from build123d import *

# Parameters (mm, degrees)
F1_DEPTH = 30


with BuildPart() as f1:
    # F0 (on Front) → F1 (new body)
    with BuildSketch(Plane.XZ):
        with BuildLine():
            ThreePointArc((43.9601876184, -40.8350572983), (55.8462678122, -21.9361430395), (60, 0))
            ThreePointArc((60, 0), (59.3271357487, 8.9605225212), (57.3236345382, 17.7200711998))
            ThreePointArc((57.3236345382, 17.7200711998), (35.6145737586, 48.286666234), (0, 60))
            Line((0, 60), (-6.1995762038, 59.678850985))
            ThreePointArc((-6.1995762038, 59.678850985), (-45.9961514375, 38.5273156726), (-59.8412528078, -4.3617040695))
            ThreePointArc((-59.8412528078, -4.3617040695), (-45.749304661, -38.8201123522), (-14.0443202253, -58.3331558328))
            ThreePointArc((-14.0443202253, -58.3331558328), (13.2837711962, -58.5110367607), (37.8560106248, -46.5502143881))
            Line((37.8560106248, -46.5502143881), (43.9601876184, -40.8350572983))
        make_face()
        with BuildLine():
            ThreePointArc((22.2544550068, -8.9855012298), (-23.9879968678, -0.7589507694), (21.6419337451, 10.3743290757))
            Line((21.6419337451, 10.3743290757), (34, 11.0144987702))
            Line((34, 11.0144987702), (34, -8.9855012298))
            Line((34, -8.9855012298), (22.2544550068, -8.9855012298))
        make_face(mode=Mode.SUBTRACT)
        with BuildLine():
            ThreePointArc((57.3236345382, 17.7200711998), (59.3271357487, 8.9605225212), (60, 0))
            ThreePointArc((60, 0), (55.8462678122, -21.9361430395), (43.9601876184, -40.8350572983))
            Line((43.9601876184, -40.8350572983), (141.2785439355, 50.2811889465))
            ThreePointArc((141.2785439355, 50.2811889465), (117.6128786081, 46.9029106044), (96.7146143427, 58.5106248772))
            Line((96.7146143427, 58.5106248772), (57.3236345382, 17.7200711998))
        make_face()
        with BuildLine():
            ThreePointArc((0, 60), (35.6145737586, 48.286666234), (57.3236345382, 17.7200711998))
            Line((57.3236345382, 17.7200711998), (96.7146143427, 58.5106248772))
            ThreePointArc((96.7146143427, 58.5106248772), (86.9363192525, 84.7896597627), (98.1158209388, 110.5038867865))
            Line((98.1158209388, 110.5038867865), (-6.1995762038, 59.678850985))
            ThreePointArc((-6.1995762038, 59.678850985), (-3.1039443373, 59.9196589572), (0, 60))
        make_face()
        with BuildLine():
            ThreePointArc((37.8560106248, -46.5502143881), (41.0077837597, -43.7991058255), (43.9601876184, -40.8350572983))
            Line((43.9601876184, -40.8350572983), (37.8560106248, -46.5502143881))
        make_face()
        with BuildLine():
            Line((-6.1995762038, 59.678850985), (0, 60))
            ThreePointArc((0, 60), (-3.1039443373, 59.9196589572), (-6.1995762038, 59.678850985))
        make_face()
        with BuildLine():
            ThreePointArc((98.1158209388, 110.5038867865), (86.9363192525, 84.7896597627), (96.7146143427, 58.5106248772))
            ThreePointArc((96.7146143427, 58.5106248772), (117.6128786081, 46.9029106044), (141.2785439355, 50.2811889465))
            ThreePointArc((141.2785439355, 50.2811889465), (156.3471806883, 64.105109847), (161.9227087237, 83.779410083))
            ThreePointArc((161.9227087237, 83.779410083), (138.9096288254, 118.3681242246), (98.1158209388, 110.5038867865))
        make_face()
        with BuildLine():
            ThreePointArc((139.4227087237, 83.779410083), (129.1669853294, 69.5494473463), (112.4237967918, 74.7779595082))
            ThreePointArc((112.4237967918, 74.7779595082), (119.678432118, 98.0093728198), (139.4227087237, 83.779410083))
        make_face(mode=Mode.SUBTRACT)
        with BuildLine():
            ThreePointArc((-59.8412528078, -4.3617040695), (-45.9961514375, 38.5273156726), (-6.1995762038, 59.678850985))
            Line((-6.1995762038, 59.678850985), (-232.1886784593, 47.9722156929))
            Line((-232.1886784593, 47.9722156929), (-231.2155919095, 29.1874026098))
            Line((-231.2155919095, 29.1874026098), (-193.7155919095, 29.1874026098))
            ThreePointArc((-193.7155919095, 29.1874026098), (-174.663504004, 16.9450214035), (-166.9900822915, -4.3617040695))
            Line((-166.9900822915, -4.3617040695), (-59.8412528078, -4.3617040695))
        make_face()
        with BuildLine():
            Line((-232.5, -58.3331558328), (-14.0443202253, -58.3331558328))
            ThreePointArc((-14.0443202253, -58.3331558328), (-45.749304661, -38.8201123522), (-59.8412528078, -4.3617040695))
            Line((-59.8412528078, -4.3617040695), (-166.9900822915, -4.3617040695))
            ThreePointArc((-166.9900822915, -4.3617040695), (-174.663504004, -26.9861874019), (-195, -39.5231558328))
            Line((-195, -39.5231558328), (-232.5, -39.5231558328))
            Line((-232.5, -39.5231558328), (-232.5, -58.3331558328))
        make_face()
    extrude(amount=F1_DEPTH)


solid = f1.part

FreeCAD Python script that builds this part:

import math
import FreeCAD as App
import Part
import Sketcher

V = App.Vector
Q = App.Units.Quantity

doc = App.newDocument("Part")
body = doc.addObject("PartDesign::Body", "Body")

sketch1 = body.newObject("Sketcher::SketchObject", "Sketch")
sketch1.AttachmentSupport = (doc.getObject("XZ_Plane"), [""])
sketch1.MapMode = "FlatFace"
sketch1.addGeometry([
    Part.LineSegment(V(98.115821, 110.503887, 0), V(-6.199576, 59.678851, 0)),
    Part.LineSegment(V(-6.199576, 59.678851, 0), V(-232.188678, 47.972216, 0)),
    Part.LineSegment(V(-232.188678, 47.972216, 0), V(-231.215592, 29.187403, 0)),
    Part.LineSegment(V(-231.215592, 29.187403, 0), V(-193.715592, 29.187403, 0)),
    Part.ArcOfCircle(Part.Circle(V(-202.237399, -5.020583, 0), V(0, 0, 1), 35.253475), math.radians(1.070907), math.radians(76.011356)),
    Part.ArcOfCircle(Part.Circle(V(-202.237399, -5.020583, 0), V(0, 0, 1), 35.253475), math.radians(-78.15317), math.radians(1.070907)),
    Part.LineSegment(V(-195, -39.523156, 0), V(-232.5, -39.523156, 0)),
    Part.LineSegment(V(-232.5, -39.523156, 0), V(-232.5, -58.333156, 0)),
    Part.LineSegment(V(-232.5, -58.333156, 0), V(-14.04432, -58.333156, 0)),
    Part.ArcOfCircle(Part.Circle(V(0, 0, 0), V(0, 0, 1), 60), math.radians(-103.536927), math.radians(-50.880971)),
    Part.ArcOfCircle(Part.Circle(V(0, 0, 0), V(0, 0, 1), 60), math.radians(-50.880971), math.radians(-42.889318)),
    Part.LineSegment(V(43.960188, -40.835057, 0), V(141.278544, 50.281189, 0)),
    Part.ArcOfCircle(Part.Circle(V(124.422709, 83.77941, 0), V(0, 0, 1), 37.5), math.radians(-63.2891), math.radians(0)),
    Part.ArcOfCircle(Part.Circle(V(124.422709, 83.77941, 0), V(0, 0, 1), 37.5), math.radians(0), math.radians(134.548841)),
    Part.LineSegment(V(34, -8.985501, 0), V(22.254455, -8.985501, 0)),
    Part.ArcOfCircle(Part.Circle(V(0, 0, 0), V(0, 0, 1), 24), math.radians(25.611307), math.radians(338.01302)),
    Part.LineSegment(V(21.641934, 10.374329, 0), V(34, 11.014499, 0)),
    Part.LineSegment(V(34, 11.014499, 0), V(34, -8.985501, 0)),
    Part.Circle(V(124.422709, 83.77941, 0), V(0, 0, 1), 15),
], False)
sketch1.addConstraint([
    Sketcher.Constraint("Coincident", 0, 2, 1, 1),
    Sketcher.Constraint("Coincident", 1, 2, 2, 1),
    Sketcher.Constraint("Coincident", 2, 2, 3, 1),
    Sketcher.Constraint("Coincident", 3, 2, 4, 2),
    Sketcher.Constraint("Tangent", 4, 1, 5, 2),
    Sketcher.Constraint("Coincident", 5, 1, 6, 1),
    Sketcher.Constraint("Coincident", 6, 2, 7, 1),
    Sketcher.Constraint("Coincident", 7, 2, 8, 1),
    Sketcher.Constraint("Coincident", 8, 2, 9, 1),
    Sketcher.Constraint("Tangent", 9, 2, 10, 1),
    Sketcher.Constraint("Coincident", 10, 2, 11, 1),
    Sketcher.Constraint("Coincident", 11, 2, 12, 1),
    Sketcher.Constraint("Tangent", 12, 2, 13, 1),
    Sketcher.Constraint("Coincident", 13, 2, 0, 1),
    Sketcher.Constraint("Coincident", 14, 2, 15, 2),
    Sketcher.Constraint("Coincident", 15, 1, 16, 1),
    Sketcher.Constraint("Coincident", 16, 2, 17, 1),
    Sketcher.Constraint("Coincident", 17, 2, 14, 1),
    Sketcher.Constraint("Horizontal", 3),
    Sketcher.Constraint("Horizontal", 6),
    Sketcher.Constraint("Vertical", 7),
    Sketcher.Constraint("Horizontal", 8),
    Sketcher.Constraint("Horizontal", 14),
    Sketcher.Constraint("Vertical", 17),
    Sketcher.Constraint("Coincident", 9, 3, -1, 1),
    Sketcher.Constraint("Coincident", 15, 3, -1, 1),
    Sketcher.Constraint("Coincident", 18, 3, 12, 3),
    Sketcher.Constraint("Equal", 4, 5),
    Sketcher.Constraint("Equal", 9, 10),
    Sketcher.Constraint("Equal", 12, 13),
    Sketcher.Constraint("Perpendicular", 1, 2),
    Sketcher.Constraint("Perpendicular", 2, 16),
    Sketcher.Constraint("Horizontal", 18, 3, 12, 2),
    Sketcher.Constraint("Equal", 3, 6),
    Sketcher.Constraint("Diameter", 18, Q("30 mm")),
    Sketcher.Constraint("Radius", 9, Q("60 mm")),
    Sketcher.Constraint("Radius", 15, Q("24 mm")),
    Sketcher.Constraint("Radius", 12, Q("37.5 mm")),
    Sketcher.Constraint("DistanceY", 17, 2, 17, 1, Q("20 mm")),
    Sketcher.Constraint("DistanceX", 3, 1, 3, 2, Q("37.5 mm")),
    Sketcher.Constraint("DistanceX", 5, 1, -1, 1, Q("195 mm")),
    Sketcher.Constraint("DistanceX", -1, 1, 16, 2, Q("34 mm")),
    Sketcher.Constraint("DistanceY", 7, 2, 7, 1, Q("18.81 mm")),
    Sketcher.Constraint("Distance", 2, Q("18.81 mm")),
    Sketcher.Constraint("Radius", 4, Q("35.253475 mm")),
    Sketcher.Constraint("DistanceX", 8, 1, 8, 2, Q("218.45568 mm")),
    Sketcher.Constraint("DistanceX", 4, 3, -1, 1, Q("202.237399 mm")),
    Sketcher.Constraint("DistanceY", 14, 2, -1, 1, Q("8.985501 mm")),
    Sketcher.Constraint("DistanceY", 4, 3, 1, 2, Q("52.992799 mm")),
    Sketcher.Constraint("DistanceY", 8, 2, 10, 2, Q("17.498099 mm")),
    Sketcher.Constraint("Distance", 1, Q("226.292111 mm")),
    Sketcher.Constraint("Distance", 11, Q("133.315539 mm")),
    Sketcher.Constraint("DistanceX", -1, 1, 12, 3, Q("124.422709 mm")),
    Sketcher.Constraint("DistanceY", -1, 1, 12, 3, Q("83.77941 mm")),
    Sketcher.Constraint("DistanceY", -1, 1, 0, 2, Q("59.678851 mm")),
    Sketcher.Constraint("DistanceX", -1, 1, 9, 2, Q("37.856011 mm")),
    Sketcher.Constraint("DistanceX", -1, 1, 13, 2, Q("98.115821 mm")),
    Sketcher.Constraint("DistanceY", 4, 3, 4, 1, Q("0.658879 mm")),
])
pad1 = body.newObject("PartDesign::Pad", "Pad")
pad1.Profile = sketch1
pad1.Length = 30

doc.recompute()
